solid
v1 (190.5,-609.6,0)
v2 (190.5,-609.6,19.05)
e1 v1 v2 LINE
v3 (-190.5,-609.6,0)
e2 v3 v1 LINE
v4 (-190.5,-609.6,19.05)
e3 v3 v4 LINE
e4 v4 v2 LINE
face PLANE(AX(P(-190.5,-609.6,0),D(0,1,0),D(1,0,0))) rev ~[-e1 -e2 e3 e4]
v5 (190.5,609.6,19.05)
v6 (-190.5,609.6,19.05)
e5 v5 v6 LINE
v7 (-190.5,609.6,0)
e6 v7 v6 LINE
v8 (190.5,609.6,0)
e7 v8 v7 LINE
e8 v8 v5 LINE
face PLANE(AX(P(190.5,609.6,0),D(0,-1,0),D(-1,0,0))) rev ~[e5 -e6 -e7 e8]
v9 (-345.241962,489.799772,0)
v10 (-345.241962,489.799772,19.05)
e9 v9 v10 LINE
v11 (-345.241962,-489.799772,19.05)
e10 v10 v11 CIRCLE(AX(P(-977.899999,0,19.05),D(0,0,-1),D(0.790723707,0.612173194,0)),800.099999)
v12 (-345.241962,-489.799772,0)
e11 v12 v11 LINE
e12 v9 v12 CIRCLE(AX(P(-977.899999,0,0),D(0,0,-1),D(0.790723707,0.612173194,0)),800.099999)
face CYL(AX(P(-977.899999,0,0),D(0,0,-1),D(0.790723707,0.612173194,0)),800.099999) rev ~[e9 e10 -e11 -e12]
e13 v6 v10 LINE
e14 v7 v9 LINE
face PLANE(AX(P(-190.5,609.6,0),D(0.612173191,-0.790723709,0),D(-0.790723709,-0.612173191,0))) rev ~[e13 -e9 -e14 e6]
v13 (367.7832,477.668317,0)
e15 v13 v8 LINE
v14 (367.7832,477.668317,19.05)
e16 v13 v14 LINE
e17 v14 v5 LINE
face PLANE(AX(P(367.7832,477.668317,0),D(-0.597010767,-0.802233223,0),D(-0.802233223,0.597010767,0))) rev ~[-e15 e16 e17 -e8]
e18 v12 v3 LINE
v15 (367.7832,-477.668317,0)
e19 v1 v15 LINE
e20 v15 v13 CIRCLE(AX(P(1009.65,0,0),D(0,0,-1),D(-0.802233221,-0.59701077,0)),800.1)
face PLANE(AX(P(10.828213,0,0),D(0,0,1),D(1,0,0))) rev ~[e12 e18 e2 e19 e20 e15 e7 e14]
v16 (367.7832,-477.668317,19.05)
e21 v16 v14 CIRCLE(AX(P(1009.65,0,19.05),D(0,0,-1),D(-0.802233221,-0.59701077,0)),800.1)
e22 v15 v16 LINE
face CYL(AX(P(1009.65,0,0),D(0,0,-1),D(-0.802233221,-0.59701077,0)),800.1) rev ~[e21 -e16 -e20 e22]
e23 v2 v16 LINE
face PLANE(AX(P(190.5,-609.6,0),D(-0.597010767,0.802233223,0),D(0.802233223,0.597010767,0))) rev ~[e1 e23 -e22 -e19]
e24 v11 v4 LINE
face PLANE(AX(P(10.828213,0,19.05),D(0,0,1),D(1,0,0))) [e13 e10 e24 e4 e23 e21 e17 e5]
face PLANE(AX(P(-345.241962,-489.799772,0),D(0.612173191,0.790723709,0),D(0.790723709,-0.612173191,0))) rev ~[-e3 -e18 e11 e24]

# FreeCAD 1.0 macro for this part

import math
import FreeCAD as App
import Part
import Sketcher
from FreeCAD import Vector
Q = App.Units.Quantity

doc = App.newDocument("Part")
body = doc.addObject("PartDesign::Body", "Body")

# Sketch on XY plane
sketch1 = body.newObject("Sketcher::SketchObject", "Sketch")
sketch1.AttachmentSupport = (doc.getObject("XY_Plane"), [""])
sketch1.MapMode = "FlatFace"
sketch1.addGeometry(Part.LineSegment(Vector(-190, -610, 0), Vector(190, -610, 0)), False)
sketch1.addGeometry(Part.LineSegment(Vector(190, -610, 0), Vector(368, -478, 0)), False)
sketch1.addGeometry(Part.ArcOfCircle(Part.Circle(Vector(1010, 0, 0), Vector(0, 0, 1), 800), math.radians(143), math.radians(217)), False)
sketch1.addGeometry(Part.LineSegment(Vector(368, 478, 0), Vector(190, 610, 0)), False)
sketch1.addGeometry(Part.LineSegment(Vector(190, 610, 0), Vector(-190, 610, 0)), False)
sketch1.addGeometry(Part.LineSegment(Vector(-190, 610, 0), Vector(-345, 490, 0)), False)
sketch1.addGeometry(Part.ArcOfCircle(Part.Circle(Vector(-978, 0, 0), Vector(0, 0, 1), 800), math.radians(-38), math.radians(38)), False)
sketch1.addGeometry(Part.LineSegment(Vector(-345, -490, 0), Vector(-190, -610, 0)), False)
sketch1.addConstraint(Sketcher.Constraint("Coincident", 0, 2, 1, 1))
sketch1.addConstraint(Sketcher.Constraint("Coincident", 1, 2, 2, 2))
sketch1.addConstraint(Sketcher.Constraint("Coincident", 2, 1, 3, 1))
sketch1.addConstraint(Sketcher.Constraint("Coincident", 3, 2, 4, 1))
sketch1.addConstraint(Sketcher.Constraint("Coincident", 4, 2, 5, 1))
sketch1.addConstraint(Sketcher.Constraint("Coincident", 5, 2, 6, 2))
sketch1.addConstraint(Sketcher.Constraint("Coincident", 6, 1, 7, 1))
sketch1.addConstraint(Sketcher.Constraint("Coincident", 7, 2, 0, 1))
sketch1.addConstraint(Sketcher.Constraint("Horizontal", 0))
sketch1.addConstraint(Sketcher.Constraint("Horizontal", 4))
sketch1.addConstraint(Sketcher.Constraint("Equal", 2, 6))
sketch1.addConstraint(Sketcher.Constraint("Symmetric", 0, 2, 4, 2, -1, 1))
sketch1.addConstraint(Sketcher.Constraint("PointOnObject", 2, 3, -1))
sketch1.addConstraint(Sketcher.Constraint("PointOnObject", 6, 3, -1))
sketch1.addConstraint(Sketcher.Constraint("Vertical", 0, 2, 3, 2))
sketch1.addConstraint(Sketcher.Constraint("Vertical", 4, 2, 7, 2))
sketch1.addConstraint(Sketcher.Constraint("Radius", 2, Q("31.5 in")))
sketch1.addConstraint(Sketcher.Constraint("DistanceX", 0, 1, 0, 2, Q("15 in")))
sketch1.addConstraint(Sketcher.Constraint("DistanceY", 0, 2, -1, 1, Q("24 in")))
sketch1.addConstraint(Sketcher.Constraint("DistanceX", 6, 3, 0, 2, Q("46 in")))
sketch1.addConstraint(Sketcher.Constraint("DistanceX", -1, 1, 2, 3, Q("39.75 in")))
sketch1.addConstraint(Sketcher.Constraint("DistanceX", -1, 1, 1, 2, Q("367.7832 mm")))
sketch1.addConstraint(Sketcher.Constraint("DistanceX", 5, 2, -1, 1, Q("345.241962 mm")))
sketch1.addConstraint(Sketcher.Constraint("Angle", 3, Q("143.343892 deg")))
sketch1.addConstraint(Sketcher.Constraint("Angle", 7, Q("-37.746805 deg")))
pad1 = body.newObject("PartDesign::Pad", "Pad")
pad1.Profile = sketch1
pad1.Length = Q("0.75 in")

doc.recompute()
